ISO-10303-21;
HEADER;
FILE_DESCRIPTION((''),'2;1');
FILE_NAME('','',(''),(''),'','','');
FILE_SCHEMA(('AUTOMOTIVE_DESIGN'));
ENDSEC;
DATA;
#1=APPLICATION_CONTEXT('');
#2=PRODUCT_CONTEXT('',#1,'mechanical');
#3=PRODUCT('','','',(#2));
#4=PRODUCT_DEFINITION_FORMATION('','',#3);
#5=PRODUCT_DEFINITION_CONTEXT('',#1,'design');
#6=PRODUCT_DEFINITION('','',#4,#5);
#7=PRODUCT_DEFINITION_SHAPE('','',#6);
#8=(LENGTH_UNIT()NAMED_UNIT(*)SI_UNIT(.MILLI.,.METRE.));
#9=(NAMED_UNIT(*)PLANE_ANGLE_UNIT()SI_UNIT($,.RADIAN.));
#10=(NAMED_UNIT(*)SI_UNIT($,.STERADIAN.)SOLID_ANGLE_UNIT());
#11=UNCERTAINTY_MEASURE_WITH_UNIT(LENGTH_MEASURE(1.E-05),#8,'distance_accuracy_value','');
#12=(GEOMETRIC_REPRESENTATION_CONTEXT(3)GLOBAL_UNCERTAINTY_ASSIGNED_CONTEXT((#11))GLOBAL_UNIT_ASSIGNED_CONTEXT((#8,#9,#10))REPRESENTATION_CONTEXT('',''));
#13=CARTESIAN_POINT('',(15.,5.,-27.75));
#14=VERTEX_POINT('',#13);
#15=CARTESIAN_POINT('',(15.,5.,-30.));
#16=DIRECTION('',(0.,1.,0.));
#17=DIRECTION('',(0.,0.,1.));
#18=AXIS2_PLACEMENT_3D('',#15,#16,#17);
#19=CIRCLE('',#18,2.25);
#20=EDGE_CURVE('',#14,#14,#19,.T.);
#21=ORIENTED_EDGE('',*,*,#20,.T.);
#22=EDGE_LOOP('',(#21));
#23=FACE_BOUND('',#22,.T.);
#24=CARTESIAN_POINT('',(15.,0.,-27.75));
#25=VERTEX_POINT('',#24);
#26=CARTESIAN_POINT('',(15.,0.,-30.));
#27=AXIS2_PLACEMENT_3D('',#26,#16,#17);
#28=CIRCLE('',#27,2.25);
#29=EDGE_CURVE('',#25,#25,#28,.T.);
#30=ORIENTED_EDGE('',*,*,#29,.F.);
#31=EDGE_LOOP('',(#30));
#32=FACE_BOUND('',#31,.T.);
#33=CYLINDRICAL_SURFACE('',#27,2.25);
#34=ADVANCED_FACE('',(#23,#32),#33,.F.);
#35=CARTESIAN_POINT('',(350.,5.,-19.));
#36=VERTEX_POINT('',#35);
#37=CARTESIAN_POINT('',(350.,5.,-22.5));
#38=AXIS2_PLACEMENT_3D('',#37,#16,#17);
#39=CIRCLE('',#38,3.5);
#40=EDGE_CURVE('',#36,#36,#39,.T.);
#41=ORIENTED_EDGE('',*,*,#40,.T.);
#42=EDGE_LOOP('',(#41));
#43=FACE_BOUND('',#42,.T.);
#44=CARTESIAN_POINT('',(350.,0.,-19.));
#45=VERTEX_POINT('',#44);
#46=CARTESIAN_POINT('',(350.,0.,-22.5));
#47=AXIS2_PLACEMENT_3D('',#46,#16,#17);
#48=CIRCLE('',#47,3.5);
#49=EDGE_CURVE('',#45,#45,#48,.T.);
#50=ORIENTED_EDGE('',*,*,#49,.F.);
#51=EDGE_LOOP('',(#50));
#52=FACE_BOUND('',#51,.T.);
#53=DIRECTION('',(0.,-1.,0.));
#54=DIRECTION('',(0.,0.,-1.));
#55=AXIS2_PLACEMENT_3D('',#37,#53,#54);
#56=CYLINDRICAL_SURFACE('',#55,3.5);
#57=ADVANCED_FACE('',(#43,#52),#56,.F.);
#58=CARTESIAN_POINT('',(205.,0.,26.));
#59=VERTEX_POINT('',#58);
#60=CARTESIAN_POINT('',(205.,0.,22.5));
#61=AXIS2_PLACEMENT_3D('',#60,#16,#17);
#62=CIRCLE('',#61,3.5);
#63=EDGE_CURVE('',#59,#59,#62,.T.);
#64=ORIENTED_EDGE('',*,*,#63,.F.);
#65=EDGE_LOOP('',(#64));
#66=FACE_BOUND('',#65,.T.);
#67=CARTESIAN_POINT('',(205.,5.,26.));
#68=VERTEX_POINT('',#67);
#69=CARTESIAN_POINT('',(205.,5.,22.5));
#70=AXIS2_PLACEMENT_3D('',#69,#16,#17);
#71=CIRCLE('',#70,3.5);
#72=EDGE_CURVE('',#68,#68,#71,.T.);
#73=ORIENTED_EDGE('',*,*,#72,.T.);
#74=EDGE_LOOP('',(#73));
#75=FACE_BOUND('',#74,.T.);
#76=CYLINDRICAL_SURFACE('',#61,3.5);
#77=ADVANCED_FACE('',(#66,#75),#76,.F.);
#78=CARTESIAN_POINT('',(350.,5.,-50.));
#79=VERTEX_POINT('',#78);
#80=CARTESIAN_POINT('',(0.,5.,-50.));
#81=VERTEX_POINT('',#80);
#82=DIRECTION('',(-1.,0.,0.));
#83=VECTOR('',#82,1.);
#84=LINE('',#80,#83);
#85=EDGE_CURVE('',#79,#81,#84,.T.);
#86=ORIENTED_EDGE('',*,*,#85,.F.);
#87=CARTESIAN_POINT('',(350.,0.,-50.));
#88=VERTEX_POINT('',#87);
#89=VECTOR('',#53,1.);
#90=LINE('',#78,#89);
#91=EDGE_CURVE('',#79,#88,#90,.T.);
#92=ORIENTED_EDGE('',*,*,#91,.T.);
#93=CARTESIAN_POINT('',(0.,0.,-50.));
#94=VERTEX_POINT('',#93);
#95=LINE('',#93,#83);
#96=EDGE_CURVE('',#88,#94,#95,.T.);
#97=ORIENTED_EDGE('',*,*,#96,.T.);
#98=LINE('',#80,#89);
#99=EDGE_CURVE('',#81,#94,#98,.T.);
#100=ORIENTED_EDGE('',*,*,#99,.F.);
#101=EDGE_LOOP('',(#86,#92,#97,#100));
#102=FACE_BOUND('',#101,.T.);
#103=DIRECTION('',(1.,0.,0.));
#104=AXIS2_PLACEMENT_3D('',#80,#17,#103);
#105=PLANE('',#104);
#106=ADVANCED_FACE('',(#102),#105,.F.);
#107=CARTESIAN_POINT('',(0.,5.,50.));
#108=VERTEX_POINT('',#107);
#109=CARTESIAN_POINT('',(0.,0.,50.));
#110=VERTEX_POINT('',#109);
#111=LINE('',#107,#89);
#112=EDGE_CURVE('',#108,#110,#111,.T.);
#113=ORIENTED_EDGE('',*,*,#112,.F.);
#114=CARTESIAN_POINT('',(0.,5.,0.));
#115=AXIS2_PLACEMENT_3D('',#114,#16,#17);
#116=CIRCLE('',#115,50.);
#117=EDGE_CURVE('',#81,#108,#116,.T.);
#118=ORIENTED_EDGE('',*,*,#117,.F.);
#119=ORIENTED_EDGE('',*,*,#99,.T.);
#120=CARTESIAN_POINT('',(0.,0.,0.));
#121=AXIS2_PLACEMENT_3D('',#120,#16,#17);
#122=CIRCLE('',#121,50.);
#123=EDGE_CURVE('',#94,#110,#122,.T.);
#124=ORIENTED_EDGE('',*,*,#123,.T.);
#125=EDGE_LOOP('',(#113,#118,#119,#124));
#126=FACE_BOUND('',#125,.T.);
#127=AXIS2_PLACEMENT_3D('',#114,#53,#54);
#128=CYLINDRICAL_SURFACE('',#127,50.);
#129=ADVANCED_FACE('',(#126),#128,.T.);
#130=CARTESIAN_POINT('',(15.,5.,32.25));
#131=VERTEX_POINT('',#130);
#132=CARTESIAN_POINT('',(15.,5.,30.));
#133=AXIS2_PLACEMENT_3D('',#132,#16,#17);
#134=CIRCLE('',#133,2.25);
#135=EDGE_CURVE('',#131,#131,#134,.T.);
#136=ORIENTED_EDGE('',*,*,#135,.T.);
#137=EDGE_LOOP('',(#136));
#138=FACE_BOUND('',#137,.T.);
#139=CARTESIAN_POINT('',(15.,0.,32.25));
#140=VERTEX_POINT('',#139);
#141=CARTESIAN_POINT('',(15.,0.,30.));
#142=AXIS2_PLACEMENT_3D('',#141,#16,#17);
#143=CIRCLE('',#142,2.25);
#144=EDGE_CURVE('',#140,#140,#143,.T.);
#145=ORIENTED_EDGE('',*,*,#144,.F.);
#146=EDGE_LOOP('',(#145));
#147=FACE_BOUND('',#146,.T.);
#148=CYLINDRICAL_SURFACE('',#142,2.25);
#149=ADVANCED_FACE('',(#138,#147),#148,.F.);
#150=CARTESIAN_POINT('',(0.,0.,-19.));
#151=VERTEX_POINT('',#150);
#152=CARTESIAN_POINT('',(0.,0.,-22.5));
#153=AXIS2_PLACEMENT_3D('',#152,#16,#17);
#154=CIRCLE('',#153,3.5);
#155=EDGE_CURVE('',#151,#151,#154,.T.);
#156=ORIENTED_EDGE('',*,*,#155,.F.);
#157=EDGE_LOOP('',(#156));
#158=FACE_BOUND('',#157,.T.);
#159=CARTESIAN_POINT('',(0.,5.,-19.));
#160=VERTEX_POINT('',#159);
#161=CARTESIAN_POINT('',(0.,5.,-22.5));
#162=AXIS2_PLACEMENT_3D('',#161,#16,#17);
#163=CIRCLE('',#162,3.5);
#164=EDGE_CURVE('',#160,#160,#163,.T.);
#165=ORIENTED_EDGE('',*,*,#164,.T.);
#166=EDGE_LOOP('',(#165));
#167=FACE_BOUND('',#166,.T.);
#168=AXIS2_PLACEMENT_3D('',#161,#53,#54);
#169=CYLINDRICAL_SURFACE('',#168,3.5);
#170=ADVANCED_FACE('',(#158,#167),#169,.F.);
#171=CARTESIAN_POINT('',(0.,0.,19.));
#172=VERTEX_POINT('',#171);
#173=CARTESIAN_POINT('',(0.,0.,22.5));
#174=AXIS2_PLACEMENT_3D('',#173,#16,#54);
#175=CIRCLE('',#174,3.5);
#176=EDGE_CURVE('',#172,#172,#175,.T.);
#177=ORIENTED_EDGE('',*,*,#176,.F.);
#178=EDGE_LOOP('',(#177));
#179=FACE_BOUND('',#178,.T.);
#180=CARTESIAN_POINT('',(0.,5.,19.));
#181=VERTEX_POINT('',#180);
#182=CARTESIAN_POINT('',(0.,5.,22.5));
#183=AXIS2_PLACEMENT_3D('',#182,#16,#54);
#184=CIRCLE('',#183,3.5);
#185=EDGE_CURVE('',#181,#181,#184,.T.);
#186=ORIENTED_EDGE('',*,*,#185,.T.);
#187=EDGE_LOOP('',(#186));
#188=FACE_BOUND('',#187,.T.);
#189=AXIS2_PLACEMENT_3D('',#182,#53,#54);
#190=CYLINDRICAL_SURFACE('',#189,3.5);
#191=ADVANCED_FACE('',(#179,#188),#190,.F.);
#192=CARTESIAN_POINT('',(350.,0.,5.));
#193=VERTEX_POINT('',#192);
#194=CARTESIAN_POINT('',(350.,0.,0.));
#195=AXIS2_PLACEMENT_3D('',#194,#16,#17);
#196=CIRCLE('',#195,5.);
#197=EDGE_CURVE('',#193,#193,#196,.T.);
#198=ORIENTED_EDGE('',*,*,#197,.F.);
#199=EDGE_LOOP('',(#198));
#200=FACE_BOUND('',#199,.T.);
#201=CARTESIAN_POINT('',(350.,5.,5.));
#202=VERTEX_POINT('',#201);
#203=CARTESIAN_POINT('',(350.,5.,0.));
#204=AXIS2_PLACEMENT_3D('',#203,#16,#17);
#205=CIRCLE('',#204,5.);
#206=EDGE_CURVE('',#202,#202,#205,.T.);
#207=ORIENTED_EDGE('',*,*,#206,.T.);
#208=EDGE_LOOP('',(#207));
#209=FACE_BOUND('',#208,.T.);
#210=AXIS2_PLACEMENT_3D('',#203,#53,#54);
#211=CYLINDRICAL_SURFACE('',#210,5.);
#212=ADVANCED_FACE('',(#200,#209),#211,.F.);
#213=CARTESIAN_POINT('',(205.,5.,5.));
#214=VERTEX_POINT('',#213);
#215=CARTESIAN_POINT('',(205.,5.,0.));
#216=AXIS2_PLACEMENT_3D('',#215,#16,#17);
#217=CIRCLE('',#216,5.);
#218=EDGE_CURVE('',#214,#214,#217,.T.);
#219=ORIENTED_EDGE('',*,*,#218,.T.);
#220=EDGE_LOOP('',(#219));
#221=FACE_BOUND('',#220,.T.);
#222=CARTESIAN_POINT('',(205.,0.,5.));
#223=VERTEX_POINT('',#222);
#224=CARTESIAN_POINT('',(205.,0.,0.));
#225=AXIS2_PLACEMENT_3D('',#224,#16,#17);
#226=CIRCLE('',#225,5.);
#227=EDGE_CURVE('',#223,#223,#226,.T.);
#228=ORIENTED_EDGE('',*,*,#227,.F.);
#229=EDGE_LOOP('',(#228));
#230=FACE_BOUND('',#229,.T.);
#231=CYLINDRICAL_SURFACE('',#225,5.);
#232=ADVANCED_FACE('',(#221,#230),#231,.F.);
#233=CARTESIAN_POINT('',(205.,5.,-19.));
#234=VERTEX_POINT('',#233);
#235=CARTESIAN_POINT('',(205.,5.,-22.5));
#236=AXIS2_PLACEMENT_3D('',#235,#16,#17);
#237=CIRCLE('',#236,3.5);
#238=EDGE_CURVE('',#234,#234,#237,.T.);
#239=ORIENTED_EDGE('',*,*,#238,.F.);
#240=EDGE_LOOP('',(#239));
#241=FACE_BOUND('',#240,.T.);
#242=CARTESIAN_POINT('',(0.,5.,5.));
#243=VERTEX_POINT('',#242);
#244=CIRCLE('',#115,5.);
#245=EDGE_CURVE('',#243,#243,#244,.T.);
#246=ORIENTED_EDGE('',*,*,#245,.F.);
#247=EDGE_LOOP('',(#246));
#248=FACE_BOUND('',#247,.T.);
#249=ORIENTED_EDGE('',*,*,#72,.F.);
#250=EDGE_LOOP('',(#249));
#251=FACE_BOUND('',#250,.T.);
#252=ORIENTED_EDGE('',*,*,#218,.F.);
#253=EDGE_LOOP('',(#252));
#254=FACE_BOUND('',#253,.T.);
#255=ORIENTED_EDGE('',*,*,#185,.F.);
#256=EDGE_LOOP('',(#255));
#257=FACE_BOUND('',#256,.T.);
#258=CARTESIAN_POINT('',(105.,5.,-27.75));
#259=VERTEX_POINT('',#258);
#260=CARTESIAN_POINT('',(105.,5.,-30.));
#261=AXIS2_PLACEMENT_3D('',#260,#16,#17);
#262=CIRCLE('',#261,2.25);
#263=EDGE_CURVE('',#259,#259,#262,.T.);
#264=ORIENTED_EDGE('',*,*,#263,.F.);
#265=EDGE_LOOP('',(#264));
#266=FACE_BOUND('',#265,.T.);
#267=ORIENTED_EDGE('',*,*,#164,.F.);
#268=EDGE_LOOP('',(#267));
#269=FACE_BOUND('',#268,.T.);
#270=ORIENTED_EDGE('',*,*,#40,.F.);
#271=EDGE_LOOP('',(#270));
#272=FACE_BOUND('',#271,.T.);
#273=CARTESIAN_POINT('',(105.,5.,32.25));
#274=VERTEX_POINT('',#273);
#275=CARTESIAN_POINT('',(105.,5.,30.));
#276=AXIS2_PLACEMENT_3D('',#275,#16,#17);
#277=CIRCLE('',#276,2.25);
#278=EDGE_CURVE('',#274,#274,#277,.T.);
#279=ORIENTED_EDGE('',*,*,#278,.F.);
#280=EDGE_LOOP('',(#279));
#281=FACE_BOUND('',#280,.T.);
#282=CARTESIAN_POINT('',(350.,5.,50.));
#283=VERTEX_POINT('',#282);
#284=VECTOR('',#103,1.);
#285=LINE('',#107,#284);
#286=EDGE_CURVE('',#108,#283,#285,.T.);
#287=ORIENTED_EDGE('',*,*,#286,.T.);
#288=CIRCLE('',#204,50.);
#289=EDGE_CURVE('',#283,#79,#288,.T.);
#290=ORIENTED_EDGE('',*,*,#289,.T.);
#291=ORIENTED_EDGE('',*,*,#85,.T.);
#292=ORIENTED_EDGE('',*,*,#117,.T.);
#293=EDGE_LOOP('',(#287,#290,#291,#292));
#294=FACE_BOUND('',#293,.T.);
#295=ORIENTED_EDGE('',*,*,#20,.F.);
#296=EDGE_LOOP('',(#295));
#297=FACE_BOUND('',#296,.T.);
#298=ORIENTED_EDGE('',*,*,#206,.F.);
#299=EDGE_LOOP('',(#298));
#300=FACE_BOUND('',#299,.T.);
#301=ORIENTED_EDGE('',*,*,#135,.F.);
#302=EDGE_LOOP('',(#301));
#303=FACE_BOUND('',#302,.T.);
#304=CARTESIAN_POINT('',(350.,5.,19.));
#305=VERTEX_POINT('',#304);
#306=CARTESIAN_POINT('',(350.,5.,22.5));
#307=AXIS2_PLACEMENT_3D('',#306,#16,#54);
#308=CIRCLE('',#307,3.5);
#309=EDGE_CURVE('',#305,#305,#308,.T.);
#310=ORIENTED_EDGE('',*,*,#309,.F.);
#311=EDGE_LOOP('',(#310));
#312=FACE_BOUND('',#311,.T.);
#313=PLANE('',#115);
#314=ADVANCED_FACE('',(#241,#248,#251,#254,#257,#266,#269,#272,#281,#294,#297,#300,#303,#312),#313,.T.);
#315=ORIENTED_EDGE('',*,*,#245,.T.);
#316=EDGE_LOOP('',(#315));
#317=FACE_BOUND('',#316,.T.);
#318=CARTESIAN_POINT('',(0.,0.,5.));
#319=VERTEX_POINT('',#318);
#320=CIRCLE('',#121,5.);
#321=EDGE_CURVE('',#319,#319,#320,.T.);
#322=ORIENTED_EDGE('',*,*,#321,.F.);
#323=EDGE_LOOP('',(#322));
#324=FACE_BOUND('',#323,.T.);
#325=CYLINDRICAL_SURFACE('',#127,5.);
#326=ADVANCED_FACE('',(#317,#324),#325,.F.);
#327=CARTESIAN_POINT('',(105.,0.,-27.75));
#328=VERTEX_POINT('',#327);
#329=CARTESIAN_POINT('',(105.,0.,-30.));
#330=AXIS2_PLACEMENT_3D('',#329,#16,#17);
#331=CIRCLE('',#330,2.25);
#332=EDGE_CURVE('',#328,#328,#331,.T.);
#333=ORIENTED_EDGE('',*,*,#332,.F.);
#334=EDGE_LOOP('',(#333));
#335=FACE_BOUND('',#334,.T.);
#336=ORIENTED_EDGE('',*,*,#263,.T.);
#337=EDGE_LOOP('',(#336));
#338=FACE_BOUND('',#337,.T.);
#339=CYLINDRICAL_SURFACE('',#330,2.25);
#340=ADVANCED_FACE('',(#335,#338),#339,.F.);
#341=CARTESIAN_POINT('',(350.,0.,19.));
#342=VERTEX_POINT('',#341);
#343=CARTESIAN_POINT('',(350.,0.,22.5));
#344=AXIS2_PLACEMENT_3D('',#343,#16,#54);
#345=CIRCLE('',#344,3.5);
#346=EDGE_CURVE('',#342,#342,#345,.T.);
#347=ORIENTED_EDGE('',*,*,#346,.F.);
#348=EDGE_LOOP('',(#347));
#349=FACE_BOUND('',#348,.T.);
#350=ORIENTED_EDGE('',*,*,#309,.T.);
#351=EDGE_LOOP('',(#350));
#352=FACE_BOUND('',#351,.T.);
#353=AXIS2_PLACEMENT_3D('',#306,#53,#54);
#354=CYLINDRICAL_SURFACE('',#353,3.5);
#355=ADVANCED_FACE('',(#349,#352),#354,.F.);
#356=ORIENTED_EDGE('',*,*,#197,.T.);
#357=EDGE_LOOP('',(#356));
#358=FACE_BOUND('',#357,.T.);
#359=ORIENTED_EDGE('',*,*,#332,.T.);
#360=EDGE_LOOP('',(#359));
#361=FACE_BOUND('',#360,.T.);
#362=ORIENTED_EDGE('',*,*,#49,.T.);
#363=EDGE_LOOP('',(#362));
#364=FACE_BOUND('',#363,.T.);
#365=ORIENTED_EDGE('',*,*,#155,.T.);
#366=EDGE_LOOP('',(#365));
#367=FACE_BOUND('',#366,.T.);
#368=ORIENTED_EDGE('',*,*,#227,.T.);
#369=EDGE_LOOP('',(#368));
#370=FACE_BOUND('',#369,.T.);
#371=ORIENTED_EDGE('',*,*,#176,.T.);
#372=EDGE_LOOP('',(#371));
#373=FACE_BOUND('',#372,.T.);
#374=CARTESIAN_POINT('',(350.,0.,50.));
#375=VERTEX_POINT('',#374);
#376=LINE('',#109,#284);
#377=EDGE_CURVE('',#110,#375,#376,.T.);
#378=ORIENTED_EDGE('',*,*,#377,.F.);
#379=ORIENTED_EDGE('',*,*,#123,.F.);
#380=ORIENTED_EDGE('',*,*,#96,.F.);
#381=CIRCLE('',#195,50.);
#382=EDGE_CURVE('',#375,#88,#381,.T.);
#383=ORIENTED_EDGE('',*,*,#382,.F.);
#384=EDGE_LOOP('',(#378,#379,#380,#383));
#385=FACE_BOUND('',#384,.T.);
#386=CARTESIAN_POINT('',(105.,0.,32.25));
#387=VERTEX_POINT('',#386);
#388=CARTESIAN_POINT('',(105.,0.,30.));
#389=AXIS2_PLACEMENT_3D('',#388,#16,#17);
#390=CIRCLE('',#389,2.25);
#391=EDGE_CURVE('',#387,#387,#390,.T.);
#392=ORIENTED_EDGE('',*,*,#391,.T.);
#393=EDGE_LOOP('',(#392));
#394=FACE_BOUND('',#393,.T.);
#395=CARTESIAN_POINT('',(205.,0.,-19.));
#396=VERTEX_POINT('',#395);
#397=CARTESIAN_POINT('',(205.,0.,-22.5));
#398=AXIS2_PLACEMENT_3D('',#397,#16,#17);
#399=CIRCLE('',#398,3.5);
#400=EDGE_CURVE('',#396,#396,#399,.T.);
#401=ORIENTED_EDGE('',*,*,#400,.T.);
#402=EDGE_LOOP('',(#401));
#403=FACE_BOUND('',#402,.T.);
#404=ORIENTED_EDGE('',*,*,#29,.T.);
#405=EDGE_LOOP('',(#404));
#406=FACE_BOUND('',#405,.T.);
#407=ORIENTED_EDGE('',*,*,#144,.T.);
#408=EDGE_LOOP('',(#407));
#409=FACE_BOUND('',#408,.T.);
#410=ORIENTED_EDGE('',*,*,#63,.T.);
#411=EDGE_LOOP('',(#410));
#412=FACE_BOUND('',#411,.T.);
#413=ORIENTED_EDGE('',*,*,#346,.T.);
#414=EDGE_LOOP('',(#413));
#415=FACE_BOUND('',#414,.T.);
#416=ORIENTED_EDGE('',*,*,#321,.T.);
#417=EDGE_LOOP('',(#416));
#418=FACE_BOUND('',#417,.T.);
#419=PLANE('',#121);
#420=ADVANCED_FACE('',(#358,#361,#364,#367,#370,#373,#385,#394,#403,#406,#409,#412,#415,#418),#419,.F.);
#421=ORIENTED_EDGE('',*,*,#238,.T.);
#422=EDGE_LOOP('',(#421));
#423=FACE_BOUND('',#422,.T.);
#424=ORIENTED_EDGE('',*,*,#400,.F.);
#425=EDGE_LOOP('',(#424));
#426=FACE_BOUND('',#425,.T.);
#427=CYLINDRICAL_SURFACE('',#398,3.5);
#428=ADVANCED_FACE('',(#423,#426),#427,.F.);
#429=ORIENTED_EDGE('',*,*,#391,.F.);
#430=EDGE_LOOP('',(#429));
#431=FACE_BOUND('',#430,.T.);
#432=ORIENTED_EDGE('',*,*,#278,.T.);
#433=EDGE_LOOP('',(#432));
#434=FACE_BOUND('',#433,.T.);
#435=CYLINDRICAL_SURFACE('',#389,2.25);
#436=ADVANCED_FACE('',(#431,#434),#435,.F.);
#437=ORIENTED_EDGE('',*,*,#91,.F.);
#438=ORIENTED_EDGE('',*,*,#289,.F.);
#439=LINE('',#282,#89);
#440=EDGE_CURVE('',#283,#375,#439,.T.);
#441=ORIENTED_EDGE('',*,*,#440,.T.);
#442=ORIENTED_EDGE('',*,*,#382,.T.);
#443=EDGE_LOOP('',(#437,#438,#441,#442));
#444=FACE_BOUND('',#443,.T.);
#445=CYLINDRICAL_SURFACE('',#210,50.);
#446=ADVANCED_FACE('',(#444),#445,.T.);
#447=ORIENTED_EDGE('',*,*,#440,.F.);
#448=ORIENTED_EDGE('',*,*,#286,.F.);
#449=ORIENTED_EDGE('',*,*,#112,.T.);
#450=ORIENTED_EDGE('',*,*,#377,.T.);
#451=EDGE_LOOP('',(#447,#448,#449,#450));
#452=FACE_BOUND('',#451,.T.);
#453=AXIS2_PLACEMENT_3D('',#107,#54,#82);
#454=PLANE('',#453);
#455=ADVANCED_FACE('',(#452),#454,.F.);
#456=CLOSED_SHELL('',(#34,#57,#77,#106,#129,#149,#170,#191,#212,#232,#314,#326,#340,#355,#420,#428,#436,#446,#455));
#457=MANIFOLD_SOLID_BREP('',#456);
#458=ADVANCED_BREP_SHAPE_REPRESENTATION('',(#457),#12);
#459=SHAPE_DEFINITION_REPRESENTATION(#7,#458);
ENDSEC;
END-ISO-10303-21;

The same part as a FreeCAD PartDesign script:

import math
import FreeCAD as App
import Part
import Sketcher

V = App.Vector

doc = App.newDocument("Part")
body = doc.addObject("PartDesign::Body", "Body")

# Sketch on XZ plane
sketch1 = body.newObject("Sketcher::SketchObject", "Sketch")
sketch1.AttachmentSupport = (doc.getObject("XZ_Plane"), [""])
sketch1.MapMode = "FlatFace"
sketch1.addGeometry(Part.LineSegment(V(350, -50, 0), V(0, -50, 0)), False)
sketch1.addGeometry(Part.ArcOfCircle(Part.Circle(V(0, 0, 0), V(0, 0, 1), 50), math.radians(90), math.radians(270)), False)
sketch1.addGeometry(Part.LineSegment(V(0, 50, 0), V(350, 50, 0)), False)
sketch1.addGeometry(Part.ArcOfCircle(Part.Circle(V(350, 0, 0), V(0, 0, 1), 50), math.radians(-90), math.radians(90)), False)
sketch1.addGeometry(Part.Circle(V(350, 22.5, 0), V(0, 0, 1), 3.5), False)
sketch1.addGeometry(Part.Circle(V(0, 22.5, 0), V(0, 0, 1), 3.5), False)
sketch1.addGeometry(Part.Circle(V(350, 0, 0), V(0, 0, 1), 5), False)
sketch1.addGeometry(Part.Circle(V(350, -22.5, 0), V(0, 0, 1), 3.5), False)
sketch1.addGeometry(Part.Circle(V(0, 0, 0), V(0, 0, 1), 5), False)
sketch1.addGeometry(Part.Circle(V(0, -22.5, 0), V(0, 0, 1), 3.5), False)
sketch1.addConstraint(Sketcher.Constraint("Tangent", 0, 2, 1, 2))
sketch1.addConstraint(Sketcher.Constraint("Tangent", 1, 1, 2, 1))
sketch1.addConstraint(Sketcher.Constraint("Tangent", 2, 2, 3, 2))
sketch1.addConstraint(Sketcher.Constraint("Tangent", 3, 1, 0, 1))
sketch1.addConstraint(Sketcher.Constraint("Horizontal", 0))
sketch1.addConstraint(Sketcher.Constraint("Horizontal", 2))
sketch1.addConstraint(Sketcher.Constraint("Coincident", 1, 3, -1, 1))
sketch1.addConstraint(Sketcher.Constraint("Coincident", 8, 3, -1, 1))
sketch1.addConstraint(Sketcher.Constraint("Coincident", 6, 3, 3, 3))
sketch1.addConstraint(Sketcher.Constraint("Equal", 4, 5))
sketch1.addConstraint(Sketcher.Constraint("Equal", 5, 7))
sketch1.addConstraint(Sketcher.Constraint("Equal", 6, 8))
sketch1.addConstraint(Sketcher.Constraint("Equal", 7, 9))
sketch1.addConstraint(Sketcher.Constraint("Symmetric", 5, 3, 9, 3, -1, 1))
sketch1.addConstraint(Sketcher.Constraint("Symmetric", 4, 3, 7, 3, -1))
sketch1.addConstraint(Sketcher.Constraint("PointOnObject", 5, 3, -2))
sketch1.addConstraint(Sketcher.Constraint("Horizontal", 4, 3, 5, 3))
sketch1.addConstraint(Sketcher.Constraint("Vertical", 3, 3, 4, 3))
sketch1.addConstraint(Sketcher.Constraint("Diameter", 4, 7.0))
sketch1.addConstraint(Sketcher.Constraint("Diameter", 6, 10.0))
sketch1.addConstraint(Sketcher.Constraint("Radius", 1, 50.0))
sketch1.addConstraint(Sketcher.Constraint("DistanceX", 0, 2, 0, 1, 350.0))
sketch1.addConstraint(Sketcher.Constraint("DistanceY", 7, 3, 4, 3, 45.0))
pad1 = body.newObject("PartDesign::Pad", "Pad")
pad1.Profile = sketch1
pad1.Length = 5
pad1.Reversed = True

# Sketch on XZ plane
sketch2 = body.newObject("Sketcher::SketchObject", "Sketch001")
sketch2.AttachmentSupport = (doc.getObject("XZ_Plane"), [""])
sketch2.MapMode = "FlatFace"
sketch2.AttachmentOffset = App.Placement(V(0, 0, -5), App.Rotation())
sketch2.addGeometry(Part.Circle(V(205, -22.5, 0), V(0, 0, 1), 3.5), False)
sketch2.addGeometry(Part.Circle(V(15, 30, 0), V(0, 0, 1), 2.2), False)
sketch2.addGeometry(Part.Circle(V(105, 30, 0), V(0, 0, 1), 2.2), False)
sketch2.addGeometry(Part.Circle(V(105, -30, 0), V(0, 0, 1), 2.2), False)
sketch2.addGeometry(Part.Circle(V(15, -30, 0), V(0, 0, 1), 2.2), False)
sketch2.addGeometry(Part.Circle(V(205, 0, 0), V(0, 0, 1), 5), False)
sketch2.addGeometry(Part.Circle(V(205, 22.5, 0), V(0, 0, 1), 3.5), False)
sketch2.addConstraint(Sketcher.Constraint("Equal", 1, 2))
sketch2.addConstraint(Sketcher.Constraint("Equal", 2, 3))
sketch2.addConstraint(Sketcher.Constraint("Equal", 3, 4))
sketch2.addConstraint(Sketcher.Constraint("Equal", 0, 6))
sketch2.addConstraint(Sketcher.Constraint("Symmetric", 2, 3, 3, 3, -1))
sketch2.addConstraint(Sketcher.Constraint("Symmetric", 1, 3, 4, 3, -1))
sketch2.addConstraint(Sketcher.Constraint("Symmetric", 0, 3, 6, 3, -1))
sketch2.addConstraint(Sketcher.Constraint("PointOnObject", 5, 3, -1))
sketch2.addConstraint(Sketcher.Constraint("Horizontal", 1, 3, 2, 3))
sketch2.addConstraint(Sketcher.Constraint("Vertical", 0, 3, 5, 3))
sketch2.addConstraint(Sketcher.Constraint("Diameter", 0, 7.0))
sketch2.addConstraint(Sketcher.Constraint("Diameter", 5, 10.0))
sketch2.addConstraint(Sketcher.Constraint("Diameter", 1, 4.5))
sketch2.addConstraint(Sketcher.Constraint("DistanceX", -1, 1, 0, 3, 205.0))
sketch2.addConstraint(Sketcher.Constraint("DistanceX", -1, 1, 1, 3, 15.0))
sketch2.addConstraint(Sketcher.Constraint("DistanceY", -1, 1, 1, 3, 30.0))
sketch2.addConstraint(Sketcher.Constraint("DistanceX", -1, 1, 2, 3, 105.0))
sketch2.addConstraint(Sketcher.Constraint("DistanceY", 0, 3, 6, 3, 45.0))
pocket1 = body.newObject("PartDesign::Pocket", "Pocket")
pocket1.Profile = sketch2
pocket1.Length = 5
pocket1.Reversed = True

doc.recompute()
